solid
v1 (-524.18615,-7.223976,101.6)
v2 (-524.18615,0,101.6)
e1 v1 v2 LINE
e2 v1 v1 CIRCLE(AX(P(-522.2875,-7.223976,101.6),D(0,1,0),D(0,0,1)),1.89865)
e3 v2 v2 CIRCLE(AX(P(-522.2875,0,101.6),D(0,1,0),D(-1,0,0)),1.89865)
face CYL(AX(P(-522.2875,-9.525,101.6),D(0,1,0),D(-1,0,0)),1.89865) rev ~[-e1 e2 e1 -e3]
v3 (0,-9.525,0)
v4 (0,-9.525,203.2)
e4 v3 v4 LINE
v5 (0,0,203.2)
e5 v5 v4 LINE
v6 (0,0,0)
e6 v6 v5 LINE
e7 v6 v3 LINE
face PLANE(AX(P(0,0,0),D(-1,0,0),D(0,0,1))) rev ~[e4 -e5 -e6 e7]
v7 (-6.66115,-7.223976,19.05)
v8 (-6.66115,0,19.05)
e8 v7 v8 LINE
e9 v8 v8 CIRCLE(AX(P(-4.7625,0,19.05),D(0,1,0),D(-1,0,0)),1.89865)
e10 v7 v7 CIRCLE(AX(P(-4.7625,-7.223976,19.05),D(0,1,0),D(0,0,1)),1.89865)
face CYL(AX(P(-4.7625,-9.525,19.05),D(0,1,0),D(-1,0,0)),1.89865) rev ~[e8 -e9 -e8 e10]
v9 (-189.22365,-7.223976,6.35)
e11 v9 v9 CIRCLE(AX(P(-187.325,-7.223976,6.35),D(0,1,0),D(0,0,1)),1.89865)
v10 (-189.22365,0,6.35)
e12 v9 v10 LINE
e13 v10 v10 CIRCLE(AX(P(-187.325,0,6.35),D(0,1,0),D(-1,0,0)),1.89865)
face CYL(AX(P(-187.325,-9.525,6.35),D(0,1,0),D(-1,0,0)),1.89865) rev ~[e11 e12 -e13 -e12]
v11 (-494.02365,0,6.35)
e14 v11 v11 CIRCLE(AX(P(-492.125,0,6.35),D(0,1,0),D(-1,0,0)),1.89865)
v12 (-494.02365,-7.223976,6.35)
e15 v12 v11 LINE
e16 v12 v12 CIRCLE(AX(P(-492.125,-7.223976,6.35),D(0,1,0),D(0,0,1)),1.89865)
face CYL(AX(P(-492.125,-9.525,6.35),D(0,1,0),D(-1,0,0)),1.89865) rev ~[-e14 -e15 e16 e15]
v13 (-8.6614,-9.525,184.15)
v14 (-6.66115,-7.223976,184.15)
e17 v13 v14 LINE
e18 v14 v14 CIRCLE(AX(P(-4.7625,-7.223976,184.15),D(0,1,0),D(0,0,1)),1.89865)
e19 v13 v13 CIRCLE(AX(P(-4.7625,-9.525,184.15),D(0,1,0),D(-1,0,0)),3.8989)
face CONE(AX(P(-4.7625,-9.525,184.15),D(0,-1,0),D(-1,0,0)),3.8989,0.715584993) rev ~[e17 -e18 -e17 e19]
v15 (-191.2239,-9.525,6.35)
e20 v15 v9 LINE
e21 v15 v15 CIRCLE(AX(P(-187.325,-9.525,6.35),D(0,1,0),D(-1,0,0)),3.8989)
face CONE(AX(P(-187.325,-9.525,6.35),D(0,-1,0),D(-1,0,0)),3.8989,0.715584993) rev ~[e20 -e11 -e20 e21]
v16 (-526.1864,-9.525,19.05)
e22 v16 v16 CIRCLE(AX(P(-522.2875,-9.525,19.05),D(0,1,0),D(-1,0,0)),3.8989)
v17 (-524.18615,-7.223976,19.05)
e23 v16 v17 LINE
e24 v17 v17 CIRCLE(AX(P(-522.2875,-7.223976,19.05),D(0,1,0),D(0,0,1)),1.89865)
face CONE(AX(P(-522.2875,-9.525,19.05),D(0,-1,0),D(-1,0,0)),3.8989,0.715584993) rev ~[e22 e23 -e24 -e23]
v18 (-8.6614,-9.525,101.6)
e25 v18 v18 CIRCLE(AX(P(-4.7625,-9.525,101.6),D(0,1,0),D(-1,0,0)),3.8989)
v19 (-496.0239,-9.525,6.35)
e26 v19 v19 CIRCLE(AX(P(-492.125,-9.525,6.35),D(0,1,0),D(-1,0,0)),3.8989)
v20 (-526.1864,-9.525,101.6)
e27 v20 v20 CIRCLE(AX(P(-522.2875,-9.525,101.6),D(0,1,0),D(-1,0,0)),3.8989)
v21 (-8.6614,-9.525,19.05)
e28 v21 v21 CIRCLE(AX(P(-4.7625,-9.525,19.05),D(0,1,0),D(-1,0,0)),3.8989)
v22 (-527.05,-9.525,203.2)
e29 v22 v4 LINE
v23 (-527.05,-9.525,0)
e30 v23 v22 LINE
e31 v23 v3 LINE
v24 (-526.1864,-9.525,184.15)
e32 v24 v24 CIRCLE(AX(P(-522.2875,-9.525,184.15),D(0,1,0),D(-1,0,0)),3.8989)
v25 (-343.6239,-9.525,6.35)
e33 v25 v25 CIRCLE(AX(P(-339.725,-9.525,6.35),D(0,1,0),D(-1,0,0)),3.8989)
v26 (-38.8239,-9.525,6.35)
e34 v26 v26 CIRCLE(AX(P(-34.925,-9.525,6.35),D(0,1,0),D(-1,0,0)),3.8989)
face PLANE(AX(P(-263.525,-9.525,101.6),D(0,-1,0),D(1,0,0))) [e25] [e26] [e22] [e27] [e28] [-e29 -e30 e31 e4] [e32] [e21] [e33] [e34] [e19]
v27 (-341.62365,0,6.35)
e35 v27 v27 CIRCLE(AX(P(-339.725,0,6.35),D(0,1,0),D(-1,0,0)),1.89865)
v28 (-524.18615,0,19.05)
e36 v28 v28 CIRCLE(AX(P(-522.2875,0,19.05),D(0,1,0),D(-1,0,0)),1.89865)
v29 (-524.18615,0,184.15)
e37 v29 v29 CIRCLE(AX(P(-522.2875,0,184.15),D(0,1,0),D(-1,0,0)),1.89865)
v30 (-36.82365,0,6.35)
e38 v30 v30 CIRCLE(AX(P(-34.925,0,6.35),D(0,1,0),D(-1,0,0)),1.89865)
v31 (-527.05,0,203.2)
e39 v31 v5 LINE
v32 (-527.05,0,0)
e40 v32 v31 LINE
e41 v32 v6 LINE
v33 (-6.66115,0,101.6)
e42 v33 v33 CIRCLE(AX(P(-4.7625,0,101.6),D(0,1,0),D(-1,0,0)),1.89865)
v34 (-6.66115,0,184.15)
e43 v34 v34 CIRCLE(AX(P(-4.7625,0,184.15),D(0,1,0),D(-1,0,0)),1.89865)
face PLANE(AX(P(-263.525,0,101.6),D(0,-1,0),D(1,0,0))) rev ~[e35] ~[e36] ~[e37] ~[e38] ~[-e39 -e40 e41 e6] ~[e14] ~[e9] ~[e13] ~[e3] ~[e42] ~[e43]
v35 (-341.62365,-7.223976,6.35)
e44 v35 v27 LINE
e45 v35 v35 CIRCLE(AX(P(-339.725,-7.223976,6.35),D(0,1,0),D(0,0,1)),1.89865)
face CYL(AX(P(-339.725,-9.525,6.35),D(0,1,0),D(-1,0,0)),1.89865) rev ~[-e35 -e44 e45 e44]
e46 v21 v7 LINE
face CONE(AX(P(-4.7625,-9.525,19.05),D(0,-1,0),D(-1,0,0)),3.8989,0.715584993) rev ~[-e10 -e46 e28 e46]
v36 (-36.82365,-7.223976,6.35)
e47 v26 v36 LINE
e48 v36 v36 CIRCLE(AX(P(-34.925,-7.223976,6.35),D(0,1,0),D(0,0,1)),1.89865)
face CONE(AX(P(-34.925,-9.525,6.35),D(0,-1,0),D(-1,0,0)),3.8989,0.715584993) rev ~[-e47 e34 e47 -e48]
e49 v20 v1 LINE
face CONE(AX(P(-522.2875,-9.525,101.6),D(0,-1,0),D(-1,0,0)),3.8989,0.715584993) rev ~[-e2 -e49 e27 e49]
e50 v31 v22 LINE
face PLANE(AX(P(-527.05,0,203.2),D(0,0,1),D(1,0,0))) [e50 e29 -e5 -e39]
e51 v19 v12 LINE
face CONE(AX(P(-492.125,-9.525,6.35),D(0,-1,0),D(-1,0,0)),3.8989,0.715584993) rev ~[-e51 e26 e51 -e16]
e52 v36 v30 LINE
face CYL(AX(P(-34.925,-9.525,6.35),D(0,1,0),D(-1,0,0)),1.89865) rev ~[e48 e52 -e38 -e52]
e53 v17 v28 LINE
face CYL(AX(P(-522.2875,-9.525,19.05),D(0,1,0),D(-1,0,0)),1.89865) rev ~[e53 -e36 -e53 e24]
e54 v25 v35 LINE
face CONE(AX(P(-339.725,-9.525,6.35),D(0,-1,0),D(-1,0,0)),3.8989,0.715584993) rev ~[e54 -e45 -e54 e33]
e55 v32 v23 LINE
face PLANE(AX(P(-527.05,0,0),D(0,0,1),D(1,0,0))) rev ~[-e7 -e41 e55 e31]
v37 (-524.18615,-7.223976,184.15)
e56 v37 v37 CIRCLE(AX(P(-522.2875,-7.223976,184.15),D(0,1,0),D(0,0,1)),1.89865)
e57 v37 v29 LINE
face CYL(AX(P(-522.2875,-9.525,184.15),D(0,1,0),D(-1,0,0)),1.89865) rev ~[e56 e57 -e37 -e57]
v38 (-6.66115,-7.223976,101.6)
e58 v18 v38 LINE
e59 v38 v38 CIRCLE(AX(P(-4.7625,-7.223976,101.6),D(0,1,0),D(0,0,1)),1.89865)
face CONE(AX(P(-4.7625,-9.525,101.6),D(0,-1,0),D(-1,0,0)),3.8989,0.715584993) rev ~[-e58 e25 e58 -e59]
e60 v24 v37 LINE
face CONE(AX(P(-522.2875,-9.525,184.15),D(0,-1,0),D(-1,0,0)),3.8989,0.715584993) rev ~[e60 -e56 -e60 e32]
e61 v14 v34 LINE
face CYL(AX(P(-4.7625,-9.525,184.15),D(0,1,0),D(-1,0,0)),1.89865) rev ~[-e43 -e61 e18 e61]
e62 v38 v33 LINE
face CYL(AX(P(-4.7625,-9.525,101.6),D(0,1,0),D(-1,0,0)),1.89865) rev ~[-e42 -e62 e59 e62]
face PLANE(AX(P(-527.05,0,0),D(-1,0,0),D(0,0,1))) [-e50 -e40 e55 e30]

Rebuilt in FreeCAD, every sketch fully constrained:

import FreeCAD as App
import Part
import Sketcher
from FreeCAD import Vector
Q = App.Units.Quantity


def add_polygon(sketch, points):
    """Adds a closed chain of lines whose ends are joined by coincident constraints."""
    first, n = sketch.GeometryCount, len(points)
    for a, b in zip(points, points[1:] + points[:1]):
        sketch.addGeometry(Part.LineSegment(App.Vector(*a, 0), App.Vector(*b, 0)), False)
    for i in range(n):
        sketch.addConstraint(Sketcher.Constraint("Coincident", first + i, 2, first + (i + 1) % n, 1))

doc = App.newDocument("Part")
body = doc.addObject("PartDesign::Body", "Body")

# Sketch on XZ plane
sketch1 = body.newObject("Sketcher::SketchObject", "Sketch")
sketch1.AttachmentSupport = (doc.getObject("XZ_Plane"), [""])
sketch1.MapMode = "FlatFace"
add_polygon(sketch1, [(-527.05, 203.2), (-527.05, 0), (0, 0), (0, 203.2)])  # lines 0-3
sketch1.addConstraint([
    Sketcher.Constraint("Vertical", 0),
    Sketcher.Constraint("Horizontal", 1),
    Sketcher.Constraint("Vertical", 2),
    Sketcher.Constraint("Horizontal", 3),
    Sketcher.Constraint("Coincident", 1, 2, -1, 1),
    Sketcher.Constraint("DistanceY", 0, 2, 0, 1, Q("8 in")),
    Sketcher.Constraint("DistanceX", 1, 1, 1, 2, Q("20.75 in")),
])
pad1 = body.newObject("PartDesign::Pad", "Pad")
pad1.Profile = sketch1
pad1.Length = Q("0.375 in")

# Sketch on XZ plane
sketch2 = body.newObject("Sketcher::SketchObject", "Sketch001")
sketch2.AttachmentSupport = (doc.getObject("XZ_Plane"), [""])
sketch2.MapMode = "FlatFace"
sketch2.AttachmentOffset = App.Placement(Vector(0, 0, 0.375 * 25.4), App.Rotation())
sketch2.addGeometry([
    Part.Circle(Vector(-4.7625, 184.15, 0), Vector(0, 0, 1), 1.89865),  # 0
    Part.Circle(Vector(-4.7625, 101.6, 0), Vector(0, 0, 1), 1.89865),  # 1
    Part.Circle(Vector(-4.7625, 19.05, 0), Vector(0, 0, 1), 1.89865),  # 2
    Part.Circle(Vector(-34.925, 6.35, 0), Vector(0, 0, 1), 1.89865),  # 3
    Part.Circle(Vector(-187.325, 6.35, 0), Vector(0, 0, 1), 1.89865),  # 4
    Part.Circle(Vector(-339.725, 6.35, 0), Vector(0, 0, 1), 1.89865),  # 5
    Part.Circle(Vector(-492.125, 6.35, 0), Vector(0, 0, 1), 1.89865),  # 6
    Part.Circle(Vector(-522.2875, 19.05, 0), Vector(0, 0, 1), 1.89865),  # 7
    Part.Circle(Vector(-522.2875, 101.6, 0), Vector(0, 0, 1), 1.89865),  # 8
    Part.Circle(Vector(-522.2875, 184.15, 0), Vector(0, 0, 1), 1.89865),  # 9
], False)
sketch2.addConstraint([
    Sketcher.Constraint("Equal", 0, 1),
    Sketcher.Constraint("Equal", 1, 2),
    Sketcher.Constraint("Equal", 2, 3),
    Sketcher.Constraint("Equal", 3, 4),
    Sketcher.Constraint("Equal", 4, 5),
    Sketcher.Constraint("Equal", 5, 6),
    Sketcher.Constraint("Equal", 6, 7),
    Sketcher.Constraint("Equal", 7, 8),
    Sketcher.Constraint("Equal", 8, 9),
    Sketcher.Constraint("Horizontal", 3, 3, 4, 3),
    Sketcher.Constraint("Horizontal", 4, 3, 5, 3),
    Sketcher.Constraint("Horizontal", 5, 3, 6, 3),
    Sketcher.Constraint("Horizontal", 2, 3, 7, 3),
    Sketcher.Constraint("Horizontal", 1, 3, 8, 3),
    Sketcher.Constraint("Horizontal", 0, 3, 9, 3),
    Sketcher.Constraint("Vertical", 0, 3, 1, 3),
    Sketcher.Constraint("Vertical", 1, 3, 2, 3),
    Sketcher.Constraint("Vertical", 7, 3, 8, 3),
    Sketcher.Constraint("Vertical", 8, 3, 9, 3),
    Sketcher.Constraint("DistanceY", -1, 1, 1, 3, Q("4 in")),
    Sketcher.Constraint("DistanceY", 3, 3, 0, 3, Q("7 in")),
    Sketcher.Constraint("DistanceX", 4, 3, 3, 3, Q("6 in")),
    Sketcher.Constraint("DistanceX", 5, 3, 4, 3, Q("6 in")),
    Sketcher.Constraint("DistanceX", 6, 3, 5, 3, Q("6 in")),
    Sketcher.Constraint("Diameter", 0, Q("0.1495 in")),
    Sketcher.Constraint("DistanceY", 2, 3, 0, 3, Q("6.5 in")),
    Sketcher.Constraint("DistanceY", -1, 1, 0, 3, Q("7.25 in")),
    Sketcher.Constraint("DistanceX", 0, 3, -1, 1, Q("0.1875 in")),
    Sketcher.Constraint("DistanceX", 3, 3, -1, 1, Q("1.375 in")),
    Sketcher.Constraint("DistanceX", 7, 3, -1, 1, Q("20.5625 in")),
])
doc.recompute()
hole = body.newObject("PartDesign::Hole", "Hole")
hole.Profile = sketch2
hole.ThreadType = "None"
hole.Diameter = Q("0.1495 in")
hole.DepthType = "Dimension"
hole.Depth = Q("0.531 in")
hole.DrillPoint = "Angled"
hole.DrillPointAngle = 118
hole.HoleCutType = "Countersink"
hole.HoleCutDiameter = Q("0.307 in")
hole.HoleCutCountersinkAngle = 82

doc.recompute()
